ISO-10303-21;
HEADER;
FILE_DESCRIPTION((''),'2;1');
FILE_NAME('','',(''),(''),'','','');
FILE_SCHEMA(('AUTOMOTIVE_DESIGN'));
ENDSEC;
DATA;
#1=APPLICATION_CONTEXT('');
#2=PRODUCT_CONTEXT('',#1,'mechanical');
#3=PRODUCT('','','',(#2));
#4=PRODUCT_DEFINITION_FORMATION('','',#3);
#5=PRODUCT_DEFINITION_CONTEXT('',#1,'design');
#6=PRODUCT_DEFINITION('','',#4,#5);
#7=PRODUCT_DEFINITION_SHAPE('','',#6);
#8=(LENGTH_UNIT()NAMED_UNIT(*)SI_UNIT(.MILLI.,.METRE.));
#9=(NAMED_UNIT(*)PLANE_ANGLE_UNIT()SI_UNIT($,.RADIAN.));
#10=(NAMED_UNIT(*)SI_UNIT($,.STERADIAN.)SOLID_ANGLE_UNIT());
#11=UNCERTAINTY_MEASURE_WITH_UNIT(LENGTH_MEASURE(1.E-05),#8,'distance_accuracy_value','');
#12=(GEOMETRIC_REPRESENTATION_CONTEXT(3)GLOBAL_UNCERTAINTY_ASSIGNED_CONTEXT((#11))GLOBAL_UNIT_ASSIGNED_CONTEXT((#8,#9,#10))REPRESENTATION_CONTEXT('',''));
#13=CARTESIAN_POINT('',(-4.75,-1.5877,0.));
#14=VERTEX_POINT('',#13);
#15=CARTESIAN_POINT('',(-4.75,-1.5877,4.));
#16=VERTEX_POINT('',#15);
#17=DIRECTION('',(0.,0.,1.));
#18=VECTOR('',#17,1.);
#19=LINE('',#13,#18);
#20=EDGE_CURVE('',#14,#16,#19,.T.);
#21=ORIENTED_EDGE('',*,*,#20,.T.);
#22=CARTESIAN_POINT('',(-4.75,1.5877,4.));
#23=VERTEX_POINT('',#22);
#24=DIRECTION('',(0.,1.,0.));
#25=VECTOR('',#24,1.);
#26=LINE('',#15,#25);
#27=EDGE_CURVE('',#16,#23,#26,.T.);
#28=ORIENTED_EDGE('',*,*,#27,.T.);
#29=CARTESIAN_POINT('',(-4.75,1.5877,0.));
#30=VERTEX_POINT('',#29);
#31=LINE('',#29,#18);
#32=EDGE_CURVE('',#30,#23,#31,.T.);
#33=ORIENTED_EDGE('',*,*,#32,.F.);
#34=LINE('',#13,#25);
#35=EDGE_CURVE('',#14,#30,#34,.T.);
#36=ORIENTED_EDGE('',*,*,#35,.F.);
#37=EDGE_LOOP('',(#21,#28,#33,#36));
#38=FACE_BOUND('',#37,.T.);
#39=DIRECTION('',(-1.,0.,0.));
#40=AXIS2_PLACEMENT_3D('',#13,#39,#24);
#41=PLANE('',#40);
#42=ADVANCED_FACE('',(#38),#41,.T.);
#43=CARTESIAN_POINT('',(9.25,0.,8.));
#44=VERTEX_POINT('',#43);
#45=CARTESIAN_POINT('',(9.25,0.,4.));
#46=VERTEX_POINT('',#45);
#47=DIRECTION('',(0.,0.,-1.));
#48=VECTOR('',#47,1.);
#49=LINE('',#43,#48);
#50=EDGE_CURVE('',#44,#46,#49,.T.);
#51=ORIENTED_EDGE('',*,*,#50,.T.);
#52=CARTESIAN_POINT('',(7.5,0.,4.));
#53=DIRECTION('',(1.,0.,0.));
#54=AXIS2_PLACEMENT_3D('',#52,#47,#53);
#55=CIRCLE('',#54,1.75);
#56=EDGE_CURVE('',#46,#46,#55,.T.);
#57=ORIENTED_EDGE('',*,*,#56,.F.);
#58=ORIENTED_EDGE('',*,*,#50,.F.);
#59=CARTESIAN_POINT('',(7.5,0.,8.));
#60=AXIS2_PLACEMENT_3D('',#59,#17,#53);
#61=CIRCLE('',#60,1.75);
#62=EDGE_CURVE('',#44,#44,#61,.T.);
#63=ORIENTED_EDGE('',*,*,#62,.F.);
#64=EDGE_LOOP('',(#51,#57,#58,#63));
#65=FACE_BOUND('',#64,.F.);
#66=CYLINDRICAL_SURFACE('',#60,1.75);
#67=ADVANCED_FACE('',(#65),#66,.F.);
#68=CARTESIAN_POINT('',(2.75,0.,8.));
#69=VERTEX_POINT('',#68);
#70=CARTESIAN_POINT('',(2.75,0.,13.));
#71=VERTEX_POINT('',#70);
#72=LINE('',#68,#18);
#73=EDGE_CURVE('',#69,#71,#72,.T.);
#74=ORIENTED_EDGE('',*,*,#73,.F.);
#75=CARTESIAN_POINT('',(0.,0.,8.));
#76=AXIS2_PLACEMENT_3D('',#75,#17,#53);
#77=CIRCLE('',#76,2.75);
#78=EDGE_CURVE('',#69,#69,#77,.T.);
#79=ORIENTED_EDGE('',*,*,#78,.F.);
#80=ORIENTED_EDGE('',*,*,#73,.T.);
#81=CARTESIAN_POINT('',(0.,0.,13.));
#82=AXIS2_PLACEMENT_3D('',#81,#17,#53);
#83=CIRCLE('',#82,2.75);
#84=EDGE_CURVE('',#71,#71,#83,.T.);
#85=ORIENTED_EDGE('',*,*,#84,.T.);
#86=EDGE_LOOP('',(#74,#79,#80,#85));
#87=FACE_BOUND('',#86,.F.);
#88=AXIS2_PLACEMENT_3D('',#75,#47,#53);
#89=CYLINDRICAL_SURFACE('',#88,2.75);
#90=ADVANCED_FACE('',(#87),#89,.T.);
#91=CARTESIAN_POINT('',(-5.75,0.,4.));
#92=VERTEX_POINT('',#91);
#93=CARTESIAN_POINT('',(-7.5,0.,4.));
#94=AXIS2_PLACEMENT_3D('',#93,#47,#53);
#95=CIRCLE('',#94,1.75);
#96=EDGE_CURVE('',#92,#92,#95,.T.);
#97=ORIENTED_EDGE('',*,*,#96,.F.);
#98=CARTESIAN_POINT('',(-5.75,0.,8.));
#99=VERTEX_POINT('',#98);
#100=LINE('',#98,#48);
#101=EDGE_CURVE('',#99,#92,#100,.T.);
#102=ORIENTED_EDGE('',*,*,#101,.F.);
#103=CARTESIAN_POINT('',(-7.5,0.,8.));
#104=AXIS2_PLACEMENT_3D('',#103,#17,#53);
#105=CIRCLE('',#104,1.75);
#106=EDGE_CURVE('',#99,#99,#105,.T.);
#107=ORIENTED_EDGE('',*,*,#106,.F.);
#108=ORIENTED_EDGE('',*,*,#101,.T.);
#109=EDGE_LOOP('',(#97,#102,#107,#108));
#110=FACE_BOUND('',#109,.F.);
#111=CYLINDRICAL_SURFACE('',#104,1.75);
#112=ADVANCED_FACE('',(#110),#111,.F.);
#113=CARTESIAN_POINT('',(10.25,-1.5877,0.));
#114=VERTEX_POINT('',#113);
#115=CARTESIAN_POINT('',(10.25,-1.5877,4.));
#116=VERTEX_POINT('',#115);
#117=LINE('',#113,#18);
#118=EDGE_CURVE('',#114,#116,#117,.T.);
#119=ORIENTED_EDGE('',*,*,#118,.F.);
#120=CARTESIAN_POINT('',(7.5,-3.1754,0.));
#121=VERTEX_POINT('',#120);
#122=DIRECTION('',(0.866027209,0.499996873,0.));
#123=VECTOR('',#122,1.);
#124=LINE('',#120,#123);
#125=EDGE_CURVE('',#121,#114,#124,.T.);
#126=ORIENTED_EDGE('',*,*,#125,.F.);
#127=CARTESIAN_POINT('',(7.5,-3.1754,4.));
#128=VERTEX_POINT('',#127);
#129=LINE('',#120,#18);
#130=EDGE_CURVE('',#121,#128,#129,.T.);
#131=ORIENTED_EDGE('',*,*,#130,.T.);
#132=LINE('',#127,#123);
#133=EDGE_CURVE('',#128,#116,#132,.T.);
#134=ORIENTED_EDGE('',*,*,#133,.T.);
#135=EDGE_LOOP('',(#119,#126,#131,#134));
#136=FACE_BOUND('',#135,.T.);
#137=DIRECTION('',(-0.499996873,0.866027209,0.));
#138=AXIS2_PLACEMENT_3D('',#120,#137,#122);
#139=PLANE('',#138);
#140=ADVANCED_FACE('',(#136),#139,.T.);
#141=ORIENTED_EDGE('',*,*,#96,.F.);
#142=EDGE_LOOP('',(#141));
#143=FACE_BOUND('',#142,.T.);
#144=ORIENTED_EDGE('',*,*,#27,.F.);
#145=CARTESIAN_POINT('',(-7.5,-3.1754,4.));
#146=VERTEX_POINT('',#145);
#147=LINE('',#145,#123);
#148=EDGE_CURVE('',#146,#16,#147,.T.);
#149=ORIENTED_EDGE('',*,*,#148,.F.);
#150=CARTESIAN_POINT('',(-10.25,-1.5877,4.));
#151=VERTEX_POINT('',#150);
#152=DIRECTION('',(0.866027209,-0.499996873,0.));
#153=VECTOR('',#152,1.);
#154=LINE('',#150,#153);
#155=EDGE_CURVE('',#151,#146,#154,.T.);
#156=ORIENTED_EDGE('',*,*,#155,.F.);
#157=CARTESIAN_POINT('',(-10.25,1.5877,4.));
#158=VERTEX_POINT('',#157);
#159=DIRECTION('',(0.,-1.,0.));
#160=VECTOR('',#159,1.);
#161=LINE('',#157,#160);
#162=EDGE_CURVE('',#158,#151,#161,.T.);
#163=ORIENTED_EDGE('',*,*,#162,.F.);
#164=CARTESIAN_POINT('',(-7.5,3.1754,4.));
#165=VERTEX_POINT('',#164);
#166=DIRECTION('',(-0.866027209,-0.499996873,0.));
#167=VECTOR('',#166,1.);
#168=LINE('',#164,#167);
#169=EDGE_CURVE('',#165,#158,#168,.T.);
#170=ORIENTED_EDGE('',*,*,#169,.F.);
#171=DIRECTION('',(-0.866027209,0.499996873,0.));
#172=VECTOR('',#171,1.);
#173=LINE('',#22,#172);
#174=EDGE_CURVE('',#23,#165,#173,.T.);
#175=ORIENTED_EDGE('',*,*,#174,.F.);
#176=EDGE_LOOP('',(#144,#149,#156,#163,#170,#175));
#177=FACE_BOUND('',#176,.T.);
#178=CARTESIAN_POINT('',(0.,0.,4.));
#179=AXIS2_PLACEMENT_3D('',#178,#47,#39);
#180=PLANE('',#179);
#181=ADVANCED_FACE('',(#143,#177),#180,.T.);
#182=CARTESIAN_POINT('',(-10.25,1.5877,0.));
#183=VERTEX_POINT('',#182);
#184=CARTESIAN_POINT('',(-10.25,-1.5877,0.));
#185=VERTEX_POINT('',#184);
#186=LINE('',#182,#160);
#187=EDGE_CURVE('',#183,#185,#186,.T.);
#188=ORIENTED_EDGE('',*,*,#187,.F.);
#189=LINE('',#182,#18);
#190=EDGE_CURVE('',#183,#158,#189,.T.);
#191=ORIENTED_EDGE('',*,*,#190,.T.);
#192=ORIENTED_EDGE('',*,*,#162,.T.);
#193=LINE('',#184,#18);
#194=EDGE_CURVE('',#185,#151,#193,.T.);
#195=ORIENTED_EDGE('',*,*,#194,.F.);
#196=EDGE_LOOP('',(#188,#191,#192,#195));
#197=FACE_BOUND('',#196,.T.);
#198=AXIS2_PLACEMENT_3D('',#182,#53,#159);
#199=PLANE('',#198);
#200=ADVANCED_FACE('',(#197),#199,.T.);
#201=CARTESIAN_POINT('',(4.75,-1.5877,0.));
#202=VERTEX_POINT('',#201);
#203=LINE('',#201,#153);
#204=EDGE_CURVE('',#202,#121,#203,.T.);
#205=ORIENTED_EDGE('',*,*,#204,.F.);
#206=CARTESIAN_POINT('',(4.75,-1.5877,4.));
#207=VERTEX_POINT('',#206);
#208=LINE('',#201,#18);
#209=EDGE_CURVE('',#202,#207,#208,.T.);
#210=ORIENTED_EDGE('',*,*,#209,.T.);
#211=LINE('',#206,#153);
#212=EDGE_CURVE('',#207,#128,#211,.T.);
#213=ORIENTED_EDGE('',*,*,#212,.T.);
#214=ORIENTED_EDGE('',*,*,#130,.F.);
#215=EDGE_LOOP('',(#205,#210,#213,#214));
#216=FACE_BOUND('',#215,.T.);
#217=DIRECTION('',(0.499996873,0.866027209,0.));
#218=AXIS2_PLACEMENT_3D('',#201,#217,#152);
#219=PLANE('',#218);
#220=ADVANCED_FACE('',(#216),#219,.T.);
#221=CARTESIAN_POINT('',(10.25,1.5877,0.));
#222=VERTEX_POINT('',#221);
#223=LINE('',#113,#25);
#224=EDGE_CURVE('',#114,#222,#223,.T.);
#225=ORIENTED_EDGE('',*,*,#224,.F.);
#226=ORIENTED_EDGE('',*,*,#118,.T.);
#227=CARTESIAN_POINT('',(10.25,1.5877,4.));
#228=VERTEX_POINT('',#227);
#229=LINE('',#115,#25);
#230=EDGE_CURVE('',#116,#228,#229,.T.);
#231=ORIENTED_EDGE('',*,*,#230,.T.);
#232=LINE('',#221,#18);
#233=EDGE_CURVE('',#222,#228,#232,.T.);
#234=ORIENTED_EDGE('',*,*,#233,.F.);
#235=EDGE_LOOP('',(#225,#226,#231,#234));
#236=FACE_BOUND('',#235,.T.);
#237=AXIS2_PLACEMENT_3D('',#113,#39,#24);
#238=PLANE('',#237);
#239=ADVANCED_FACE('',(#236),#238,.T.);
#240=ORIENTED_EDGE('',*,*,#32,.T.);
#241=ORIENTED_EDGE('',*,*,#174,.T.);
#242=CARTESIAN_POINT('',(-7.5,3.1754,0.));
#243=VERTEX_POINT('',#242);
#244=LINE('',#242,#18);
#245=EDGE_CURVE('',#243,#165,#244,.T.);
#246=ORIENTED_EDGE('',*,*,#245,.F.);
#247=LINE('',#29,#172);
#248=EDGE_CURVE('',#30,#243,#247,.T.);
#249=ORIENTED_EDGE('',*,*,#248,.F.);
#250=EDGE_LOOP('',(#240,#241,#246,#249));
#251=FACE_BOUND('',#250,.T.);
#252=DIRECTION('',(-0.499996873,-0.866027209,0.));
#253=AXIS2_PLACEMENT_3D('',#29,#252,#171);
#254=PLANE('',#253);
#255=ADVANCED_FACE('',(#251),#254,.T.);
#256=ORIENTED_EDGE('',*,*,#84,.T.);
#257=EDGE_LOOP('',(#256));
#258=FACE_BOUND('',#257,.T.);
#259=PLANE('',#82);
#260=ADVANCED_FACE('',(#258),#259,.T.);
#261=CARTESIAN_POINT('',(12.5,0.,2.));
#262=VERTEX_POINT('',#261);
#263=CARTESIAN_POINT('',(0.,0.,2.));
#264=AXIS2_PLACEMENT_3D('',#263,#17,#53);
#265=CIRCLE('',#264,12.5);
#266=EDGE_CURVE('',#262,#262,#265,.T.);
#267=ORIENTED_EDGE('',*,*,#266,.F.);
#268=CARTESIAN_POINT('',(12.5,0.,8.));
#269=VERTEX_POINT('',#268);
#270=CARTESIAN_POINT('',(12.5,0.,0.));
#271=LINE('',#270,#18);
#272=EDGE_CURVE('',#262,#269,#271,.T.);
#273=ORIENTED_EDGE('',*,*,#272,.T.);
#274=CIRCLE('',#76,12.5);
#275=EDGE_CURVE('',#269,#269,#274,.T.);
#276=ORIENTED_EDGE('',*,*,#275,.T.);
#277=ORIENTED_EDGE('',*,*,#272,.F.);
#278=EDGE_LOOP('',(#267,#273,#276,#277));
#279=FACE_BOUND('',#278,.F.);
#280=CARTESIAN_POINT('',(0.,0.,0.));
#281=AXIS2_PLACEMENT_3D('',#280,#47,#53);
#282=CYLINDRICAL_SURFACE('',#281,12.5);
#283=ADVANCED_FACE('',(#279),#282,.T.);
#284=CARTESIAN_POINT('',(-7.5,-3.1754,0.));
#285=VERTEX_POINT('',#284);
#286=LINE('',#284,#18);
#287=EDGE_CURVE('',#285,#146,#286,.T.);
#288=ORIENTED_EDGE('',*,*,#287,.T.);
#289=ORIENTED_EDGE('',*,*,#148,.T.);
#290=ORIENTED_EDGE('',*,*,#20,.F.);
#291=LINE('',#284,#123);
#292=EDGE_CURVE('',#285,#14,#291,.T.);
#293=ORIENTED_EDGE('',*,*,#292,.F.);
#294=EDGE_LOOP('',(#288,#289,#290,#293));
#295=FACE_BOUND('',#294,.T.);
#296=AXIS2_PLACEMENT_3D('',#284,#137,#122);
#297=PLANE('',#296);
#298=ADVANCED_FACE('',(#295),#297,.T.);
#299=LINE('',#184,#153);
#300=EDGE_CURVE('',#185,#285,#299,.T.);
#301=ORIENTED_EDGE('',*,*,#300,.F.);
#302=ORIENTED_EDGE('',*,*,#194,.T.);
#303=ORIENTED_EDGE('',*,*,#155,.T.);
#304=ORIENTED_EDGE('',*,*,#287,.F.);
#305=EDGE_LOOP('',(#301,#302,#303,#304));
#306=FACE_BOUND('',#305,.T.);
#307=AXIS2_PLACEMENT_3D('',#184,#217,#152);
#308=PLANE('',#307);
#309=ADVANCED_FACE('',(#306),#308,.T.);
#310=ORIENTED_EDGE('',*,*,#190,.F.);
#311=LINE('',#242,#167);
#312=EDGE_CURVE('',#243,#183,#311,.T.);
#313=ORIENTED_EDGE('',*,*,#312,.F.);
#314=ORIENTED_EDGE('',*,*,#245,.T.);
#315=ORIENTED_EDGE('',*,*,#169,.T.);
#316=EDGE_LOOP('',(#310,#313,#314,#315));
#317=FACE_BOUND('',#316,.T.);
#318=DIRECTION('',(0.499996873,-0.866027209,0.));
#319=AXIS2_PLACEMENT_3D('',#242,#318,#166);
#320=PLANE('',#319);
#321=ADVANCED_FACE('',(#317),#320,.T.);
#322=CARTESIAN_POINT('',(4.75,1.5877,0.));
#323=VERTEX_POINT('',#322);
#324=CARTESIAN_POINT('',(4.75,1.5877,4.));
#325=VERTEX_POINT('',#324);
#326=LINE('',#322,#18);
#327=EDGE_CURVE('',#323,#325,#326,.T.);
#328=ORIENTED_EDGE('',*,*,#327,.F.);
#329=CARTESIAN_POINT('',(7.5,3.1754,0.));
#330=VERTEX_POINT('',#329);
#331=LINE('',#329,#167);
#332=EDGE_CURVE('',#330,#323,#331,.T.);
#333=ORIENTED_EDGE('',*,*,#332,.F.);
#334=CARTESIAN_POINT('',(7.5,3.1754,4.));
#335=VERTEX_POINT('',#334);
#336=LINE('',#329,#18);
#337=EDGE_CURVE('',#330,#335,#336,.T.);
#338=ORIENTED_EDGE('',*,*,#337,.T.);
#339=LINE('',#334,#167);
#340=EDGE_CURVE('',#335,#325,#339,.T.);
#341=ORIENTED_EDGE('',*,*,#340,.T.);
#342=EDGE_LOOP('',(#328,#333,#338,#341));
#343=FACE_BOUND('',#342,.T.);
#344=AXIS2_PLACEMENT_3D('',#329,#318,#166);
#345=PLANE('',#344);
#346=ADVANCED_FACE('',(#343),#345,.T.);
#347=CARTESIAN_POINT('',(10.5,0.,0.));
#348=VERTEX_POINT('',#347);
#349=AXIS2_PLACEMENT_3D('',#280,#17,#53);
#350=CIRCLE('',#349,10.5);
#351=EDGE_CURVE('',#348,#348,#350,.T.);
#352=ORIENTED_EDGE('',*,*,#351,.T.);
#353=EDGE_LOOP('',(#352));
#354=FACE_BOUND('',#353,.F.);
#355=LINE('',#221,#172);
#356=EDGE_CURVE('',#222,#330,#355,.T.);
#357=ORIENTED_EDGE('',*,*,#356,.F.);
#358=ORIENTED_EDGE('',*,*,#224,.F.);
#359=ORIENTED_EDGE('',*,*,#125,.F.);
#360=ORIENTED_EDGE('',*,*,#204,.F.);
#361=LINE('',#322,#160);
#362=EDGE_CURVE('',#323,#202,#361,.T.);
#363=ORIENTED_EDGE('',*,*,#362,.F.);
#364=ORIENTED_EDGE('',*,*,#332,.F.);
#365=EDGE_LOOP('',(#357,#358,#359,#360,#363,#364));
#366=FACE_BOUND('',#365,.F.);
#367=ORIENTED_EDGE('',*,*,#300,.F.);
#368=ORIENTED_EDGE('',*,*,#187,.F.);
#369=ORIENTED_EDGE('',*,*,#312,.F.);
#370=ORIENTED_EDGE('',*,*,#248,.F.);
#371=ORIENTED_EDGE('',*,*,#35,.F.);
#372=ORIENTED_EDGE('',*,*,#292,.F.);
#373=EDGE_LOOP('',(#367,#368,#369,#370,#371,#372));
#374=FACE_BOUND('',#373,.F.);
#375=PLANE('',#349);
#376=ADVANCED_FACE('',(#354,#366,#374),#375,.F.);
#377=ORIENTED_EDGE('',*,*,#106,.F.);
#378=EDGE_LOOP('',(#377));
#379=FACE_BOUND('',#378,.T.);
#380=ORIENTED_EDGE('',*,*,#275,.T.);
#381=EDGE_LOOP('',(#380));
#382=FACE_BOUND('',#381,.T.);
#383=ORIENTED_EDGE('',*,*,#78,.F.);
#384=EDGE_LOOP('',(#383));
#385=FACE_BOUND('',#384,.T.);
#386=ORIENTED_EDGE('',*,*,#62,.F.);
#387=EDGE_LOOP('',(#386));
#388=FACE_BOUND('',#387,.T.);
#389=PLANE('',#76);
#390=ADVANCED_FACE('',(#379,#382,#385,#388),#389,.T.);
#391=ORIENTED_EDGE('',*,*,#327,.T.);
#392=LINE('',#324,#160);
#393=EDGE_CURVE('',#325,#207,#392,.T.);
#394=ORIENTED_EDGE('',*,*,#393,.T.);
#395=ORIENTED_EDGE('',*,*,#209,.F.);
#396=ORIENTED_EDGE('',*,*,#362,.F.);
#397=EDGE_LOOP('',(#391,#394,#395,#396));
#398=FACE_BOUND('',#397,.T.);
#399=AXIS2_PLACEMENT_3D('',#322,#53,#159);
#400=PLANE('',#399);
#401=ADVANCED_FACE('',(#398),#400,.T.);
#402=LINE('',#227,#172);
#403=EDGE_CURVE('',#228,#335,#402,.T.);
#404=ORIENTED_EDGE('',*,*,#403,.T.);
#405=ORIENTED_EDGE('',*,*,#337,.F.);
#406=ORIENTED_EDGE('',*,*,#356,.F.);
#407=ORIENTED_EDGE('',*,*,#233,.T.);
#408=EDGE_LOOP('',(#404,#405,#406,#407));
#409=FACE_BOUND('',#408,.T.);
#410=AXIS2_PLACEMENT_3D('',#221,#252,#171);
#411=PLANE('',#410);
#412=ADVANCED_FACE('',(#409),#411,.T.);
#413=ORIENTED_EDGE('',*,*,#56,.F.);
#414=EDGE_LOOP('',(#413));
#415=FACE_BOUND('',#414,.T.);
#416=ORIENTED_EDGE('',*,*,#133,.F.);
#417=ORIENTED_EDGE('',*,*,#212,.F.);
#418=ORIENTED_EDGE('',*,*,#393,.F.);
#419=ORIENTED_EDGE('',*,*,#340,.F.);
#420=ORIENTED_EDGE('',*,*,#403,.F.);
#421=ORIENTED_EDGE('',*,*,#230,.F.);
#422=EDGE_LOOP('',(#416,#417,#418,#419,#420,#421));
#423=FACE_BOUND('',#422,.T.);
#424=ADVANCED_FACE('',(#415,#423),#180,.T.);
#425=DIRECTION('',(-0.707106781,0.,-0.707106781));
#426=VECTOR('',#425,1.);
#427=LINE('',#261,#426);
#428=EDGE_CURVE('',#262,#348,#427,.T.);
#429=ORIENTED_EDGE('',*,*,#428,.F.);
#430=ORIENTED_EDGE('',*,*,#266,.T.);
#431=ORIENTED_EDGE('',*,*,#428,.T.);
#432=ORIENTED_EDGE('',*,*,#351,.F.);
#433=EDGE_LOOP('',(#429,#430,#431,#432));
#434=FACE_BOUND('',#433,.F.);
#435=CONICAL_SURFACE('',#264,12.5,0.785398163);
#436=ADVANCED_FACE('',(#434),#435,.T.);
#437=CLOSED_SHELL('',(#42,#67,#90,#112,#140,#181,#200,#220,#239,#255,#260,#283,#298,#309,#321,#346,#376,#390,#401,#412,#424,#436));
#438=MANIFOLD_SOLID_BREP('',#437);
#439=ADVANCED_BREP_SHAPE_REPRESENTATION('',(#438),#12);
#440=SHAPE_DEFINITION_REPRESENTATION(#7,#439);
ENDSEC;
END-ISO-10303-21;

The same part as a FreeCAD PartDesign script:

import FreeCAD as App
import Part
import Sketcher
from FreeCAD import Vector
Q = App.Units.Quantity


def edges_at(feature, points):
    """Names of the edges that pass closest to the given points."""
    edges = feature.Shape.Edges
    near = lambda p: min(range(len(edges)), key=lambda i: edges[i].distToShape(Part.Vertex(*p))[0])
    return sorted({f"Edge{near(p) + 1}" for p in points})


def add_polygon(sketch, points):
    """Adds a closed chain of lines whose ends are joined by coincident constraints."""
    first, n = sketch.GeometryCount, len(points)
    for a, b in zip(points, points[1:] + points[:1]):
        sketch.addGeometry(Part.LineSegment(App.Vector(*a, 0), App.Vector(*b, 0)), False)
    for i in range(n):
        sketch.addConstraint(Sketcher.Constraint("Coincident", first + i, 2, first + (i + 1) % n, 1))

doc = App.newDocument("Part")
body = doc.addObject("PartDesign::Body", "Body")

# Sketch on XY plane
sketch1 = doc.addObject("Sketcher::SketchObject", "Sketch")
body.addObject(sketch1)
sketch1.AttachmentSupport = (doc.XY_Plane, [""])
sketch1.MapMode = "FlatFace"
sketch1.addGeometry(Part.Circle(Vector(0, 0, 0), Vector(0, 0, 1), 12), False)
sketch1.addConstraint(Sketcher.Constraint("Coincident", 0, 3, -1, 1))
sketch1.addConstraint(Sketcher.Constraint("Diameter", 0, Q("25 mm")))
pad1 = doc.addObject("PartDesign::Pad", "Pad")
body.addObject(pad1)
pad1.Profile = sketch1
pad1.Length = 8

# Sketch on XY plane
sketch2 = doc.addObject("Sketcher::SketchObject", "Sketch001")
body.addObject(sketch2)
sketch2.AttachmentSupport = (doc.XY_Plane, [""])
sketch2.MapMode = "FlatFace"
sketch2.AttachmentOffset = App.Placement(Vector(0, 0, 8), App.Rotation())
sketch2.addGeometry(Part.Circle(Vector(0, 0, 0), Vector(0, 0, 1), 2.8), False)
sketch2.addConstraint(Sketcher.Constraint("Coincident", 0, 3, -1, 1))
sketch2.addConstraint(Sketcher.Constraint("Diameter", 0, Q("5.5 mm")))
pad2 = doc.addObject("PartDesign::Pad", "Pad001")
body.addObject(pad2)
pad2.Profile = sketch2
pad2.Length = 5

# Sketch on XY plane
sketch3 = doc.addObject("Sketcher::SketchObject", "Sketch002")
body.addObject(sketch3)
sketch3.AttachmentSupport = (doc.XY_Plane, [""])
sketch3.MapMode = "FlatFace"
sketch3.AttachmentOffset = App.Placement(Vector(0, 0, 8), App.Rotation())
sketch3.addGeometry(Part.Circle(Vector(-7.5, 0, 0), Vector(0, 0, 1), 1.8), False)
sketch3.addGeometry(Part.Circle(Vector(7.5, 0, 0), Vector(0, 0, 1), 1.8), False)
sketch3.addConstraint(Sketcher.Constraint("Equal", 0, 1))
sketch3.addConstraint(Sketcher.Constraint("Symmetric", 0, 3, 1, 3, -1, 1))
sketch3.addConstraint(Sketcher.Constraint("PointOnObject", 0, 3, -1))
sketch3.addConstraint(Sketcher.Constraint("Diameter", 0, Q("3.5 mm")))
sketch3.addConstraint(Sketcher.Constraint("DistanceX", 0, 3, -1, 1, Q("7.5 mm")))
pocket1 = doc.addObject("PartDesign::Pocket", "Pocket")
body.addObject(pocket1)
pocket1.Profile = sketch3
pocket1.Type = "ThroughAll"

# Sketch on XY plane
sketch4 = doc.addObject("Sketcher::SketchObject", "Sketch003")
body.addObject(sketch4)
sketch4.AttachmentSupport = (doc.XY_Plane, [""])
sketch4.MapMode = "FlatFace"
add_polygon(sketch4, [(4.8, 1.6), (7.5, 3.2), (10.2, 1.6), (10.2, -1.6), (7.5, -3.2), (4.8, -1.6)])  # lines 0-5
sketch4.addGeometry(Part.Circle(Vector(7.5, 0, 0), Vector(0, 0, 1), 1.8), False)  # 6
add_polygon(sketch4, [(-10.2, 1.6), (-7.5, 3.2), (-4.8, 1.6), (-4.8, -1.6), (-7.5, -3.2), (-10.2, -1.6)])  # lines 7-12
sketch4.addGeometry(Part.Circle(Vector(-7.5, 0, 0), Vector(0, 0, 1), 1.8), False)  # 13
sketch4.addConstraint(Sketcher.Constraint("Vertical", 2))
sketch4.addConstraint(Sketcher.Constraint("Vertical", 5))
sketch4.addConstraint(Sketcher.Constraint("Vertical", 9))
sketch4.addConstraint(Sketcher.Constraint("Vertical", 12))
sketch4.addConstraint(Sketcher.Constraint("Equal", 6, 13))
sketch4.addConstraint(Sketcher.Constraint("Symmetric", 6, 3, 13, 3, -1, 1))
sketch4.addConstraint(Sketcher.Constraint("Symmetric", 3, 2, 7, 2, -1, 1))
sketch4.addConstraint(Sketcher.Constraint("Symmetric", 4, 2, 8, 2, -1, 1))
sketch4.addConstraint(Sketcher.Constraint("Symmetric", 0, 2, 10, 2, -1, 1))
sketch4.addConstraint(Sketcher.Constraint("Symmetric", 1, 2, 11, 2, -1, 1))
sketch4.addConstraint(Sketcher.Constraint("Symmetric", 0, 2, 7, 2, -2))
sketch4.addConstraint(Sketcher.Constraint("PointOnObject", 6, 3, -1))
sketch4.addConstraint(Sketcher.Constraint("Parallel", 0, 3))
sketch4.addConstraint(Sketcher.Constraint("Parallel", 1, 4))
sketch4.addConstraint(Sketcher.Constraint("Parallel", 3, 7))
sketch4.addConstraint(Sketcher.Constraint("Parallel", 7, 10))
sketch4.addConstraint(Sketcher.Constraint("Horizontal", 2, 2, 4, 2))
sketch4.addConstraint(Sketcher.Constraint("Horizontal", 1, 2, 5, 2))
sketch4.addConstraint(Sketcher.Constraint("Vertical", 6, 3, 0, 2))
sketch4.addConstraint(Sketcher.Constraint("Diameter", 6, Q("3.5 mm")))
sketch4.addConstraint(Sketcher.Constraint("DistanceX", 4, 2, 2, 2, Q("5.5 mm")))
sketch4.addConstraint(Sketcher.Constraint("Angle", 0, Q("29.9998 deg")))
sketch4.addConstraint(Sketcher.Constraint("DistanceX", 13, 3, 6, 3, Q("15 mm")))
sketch4.addConstraint(Sketcher.Constraint("DistanceY", 2, 2, 2, 1, Q("3.1754 mm")))
pocket2 = doc.addObject("PartDesign::Pocket", "Pocket001")
body.addObject(pocket2)
pocket2.Profile = sketch4
pocket2.Length = 4
pocket2.Reversed = True
doc.recompute()

chamfer = doc.addObject("PartDesign::Chamfer", "Chamfer")
body.addObject(chamfer)
chamfer.Base = (pocket2, edges_at(pocket2, [(-12.5, 0, 0)]))
chamfer.Size = 2

doc.recompute()
